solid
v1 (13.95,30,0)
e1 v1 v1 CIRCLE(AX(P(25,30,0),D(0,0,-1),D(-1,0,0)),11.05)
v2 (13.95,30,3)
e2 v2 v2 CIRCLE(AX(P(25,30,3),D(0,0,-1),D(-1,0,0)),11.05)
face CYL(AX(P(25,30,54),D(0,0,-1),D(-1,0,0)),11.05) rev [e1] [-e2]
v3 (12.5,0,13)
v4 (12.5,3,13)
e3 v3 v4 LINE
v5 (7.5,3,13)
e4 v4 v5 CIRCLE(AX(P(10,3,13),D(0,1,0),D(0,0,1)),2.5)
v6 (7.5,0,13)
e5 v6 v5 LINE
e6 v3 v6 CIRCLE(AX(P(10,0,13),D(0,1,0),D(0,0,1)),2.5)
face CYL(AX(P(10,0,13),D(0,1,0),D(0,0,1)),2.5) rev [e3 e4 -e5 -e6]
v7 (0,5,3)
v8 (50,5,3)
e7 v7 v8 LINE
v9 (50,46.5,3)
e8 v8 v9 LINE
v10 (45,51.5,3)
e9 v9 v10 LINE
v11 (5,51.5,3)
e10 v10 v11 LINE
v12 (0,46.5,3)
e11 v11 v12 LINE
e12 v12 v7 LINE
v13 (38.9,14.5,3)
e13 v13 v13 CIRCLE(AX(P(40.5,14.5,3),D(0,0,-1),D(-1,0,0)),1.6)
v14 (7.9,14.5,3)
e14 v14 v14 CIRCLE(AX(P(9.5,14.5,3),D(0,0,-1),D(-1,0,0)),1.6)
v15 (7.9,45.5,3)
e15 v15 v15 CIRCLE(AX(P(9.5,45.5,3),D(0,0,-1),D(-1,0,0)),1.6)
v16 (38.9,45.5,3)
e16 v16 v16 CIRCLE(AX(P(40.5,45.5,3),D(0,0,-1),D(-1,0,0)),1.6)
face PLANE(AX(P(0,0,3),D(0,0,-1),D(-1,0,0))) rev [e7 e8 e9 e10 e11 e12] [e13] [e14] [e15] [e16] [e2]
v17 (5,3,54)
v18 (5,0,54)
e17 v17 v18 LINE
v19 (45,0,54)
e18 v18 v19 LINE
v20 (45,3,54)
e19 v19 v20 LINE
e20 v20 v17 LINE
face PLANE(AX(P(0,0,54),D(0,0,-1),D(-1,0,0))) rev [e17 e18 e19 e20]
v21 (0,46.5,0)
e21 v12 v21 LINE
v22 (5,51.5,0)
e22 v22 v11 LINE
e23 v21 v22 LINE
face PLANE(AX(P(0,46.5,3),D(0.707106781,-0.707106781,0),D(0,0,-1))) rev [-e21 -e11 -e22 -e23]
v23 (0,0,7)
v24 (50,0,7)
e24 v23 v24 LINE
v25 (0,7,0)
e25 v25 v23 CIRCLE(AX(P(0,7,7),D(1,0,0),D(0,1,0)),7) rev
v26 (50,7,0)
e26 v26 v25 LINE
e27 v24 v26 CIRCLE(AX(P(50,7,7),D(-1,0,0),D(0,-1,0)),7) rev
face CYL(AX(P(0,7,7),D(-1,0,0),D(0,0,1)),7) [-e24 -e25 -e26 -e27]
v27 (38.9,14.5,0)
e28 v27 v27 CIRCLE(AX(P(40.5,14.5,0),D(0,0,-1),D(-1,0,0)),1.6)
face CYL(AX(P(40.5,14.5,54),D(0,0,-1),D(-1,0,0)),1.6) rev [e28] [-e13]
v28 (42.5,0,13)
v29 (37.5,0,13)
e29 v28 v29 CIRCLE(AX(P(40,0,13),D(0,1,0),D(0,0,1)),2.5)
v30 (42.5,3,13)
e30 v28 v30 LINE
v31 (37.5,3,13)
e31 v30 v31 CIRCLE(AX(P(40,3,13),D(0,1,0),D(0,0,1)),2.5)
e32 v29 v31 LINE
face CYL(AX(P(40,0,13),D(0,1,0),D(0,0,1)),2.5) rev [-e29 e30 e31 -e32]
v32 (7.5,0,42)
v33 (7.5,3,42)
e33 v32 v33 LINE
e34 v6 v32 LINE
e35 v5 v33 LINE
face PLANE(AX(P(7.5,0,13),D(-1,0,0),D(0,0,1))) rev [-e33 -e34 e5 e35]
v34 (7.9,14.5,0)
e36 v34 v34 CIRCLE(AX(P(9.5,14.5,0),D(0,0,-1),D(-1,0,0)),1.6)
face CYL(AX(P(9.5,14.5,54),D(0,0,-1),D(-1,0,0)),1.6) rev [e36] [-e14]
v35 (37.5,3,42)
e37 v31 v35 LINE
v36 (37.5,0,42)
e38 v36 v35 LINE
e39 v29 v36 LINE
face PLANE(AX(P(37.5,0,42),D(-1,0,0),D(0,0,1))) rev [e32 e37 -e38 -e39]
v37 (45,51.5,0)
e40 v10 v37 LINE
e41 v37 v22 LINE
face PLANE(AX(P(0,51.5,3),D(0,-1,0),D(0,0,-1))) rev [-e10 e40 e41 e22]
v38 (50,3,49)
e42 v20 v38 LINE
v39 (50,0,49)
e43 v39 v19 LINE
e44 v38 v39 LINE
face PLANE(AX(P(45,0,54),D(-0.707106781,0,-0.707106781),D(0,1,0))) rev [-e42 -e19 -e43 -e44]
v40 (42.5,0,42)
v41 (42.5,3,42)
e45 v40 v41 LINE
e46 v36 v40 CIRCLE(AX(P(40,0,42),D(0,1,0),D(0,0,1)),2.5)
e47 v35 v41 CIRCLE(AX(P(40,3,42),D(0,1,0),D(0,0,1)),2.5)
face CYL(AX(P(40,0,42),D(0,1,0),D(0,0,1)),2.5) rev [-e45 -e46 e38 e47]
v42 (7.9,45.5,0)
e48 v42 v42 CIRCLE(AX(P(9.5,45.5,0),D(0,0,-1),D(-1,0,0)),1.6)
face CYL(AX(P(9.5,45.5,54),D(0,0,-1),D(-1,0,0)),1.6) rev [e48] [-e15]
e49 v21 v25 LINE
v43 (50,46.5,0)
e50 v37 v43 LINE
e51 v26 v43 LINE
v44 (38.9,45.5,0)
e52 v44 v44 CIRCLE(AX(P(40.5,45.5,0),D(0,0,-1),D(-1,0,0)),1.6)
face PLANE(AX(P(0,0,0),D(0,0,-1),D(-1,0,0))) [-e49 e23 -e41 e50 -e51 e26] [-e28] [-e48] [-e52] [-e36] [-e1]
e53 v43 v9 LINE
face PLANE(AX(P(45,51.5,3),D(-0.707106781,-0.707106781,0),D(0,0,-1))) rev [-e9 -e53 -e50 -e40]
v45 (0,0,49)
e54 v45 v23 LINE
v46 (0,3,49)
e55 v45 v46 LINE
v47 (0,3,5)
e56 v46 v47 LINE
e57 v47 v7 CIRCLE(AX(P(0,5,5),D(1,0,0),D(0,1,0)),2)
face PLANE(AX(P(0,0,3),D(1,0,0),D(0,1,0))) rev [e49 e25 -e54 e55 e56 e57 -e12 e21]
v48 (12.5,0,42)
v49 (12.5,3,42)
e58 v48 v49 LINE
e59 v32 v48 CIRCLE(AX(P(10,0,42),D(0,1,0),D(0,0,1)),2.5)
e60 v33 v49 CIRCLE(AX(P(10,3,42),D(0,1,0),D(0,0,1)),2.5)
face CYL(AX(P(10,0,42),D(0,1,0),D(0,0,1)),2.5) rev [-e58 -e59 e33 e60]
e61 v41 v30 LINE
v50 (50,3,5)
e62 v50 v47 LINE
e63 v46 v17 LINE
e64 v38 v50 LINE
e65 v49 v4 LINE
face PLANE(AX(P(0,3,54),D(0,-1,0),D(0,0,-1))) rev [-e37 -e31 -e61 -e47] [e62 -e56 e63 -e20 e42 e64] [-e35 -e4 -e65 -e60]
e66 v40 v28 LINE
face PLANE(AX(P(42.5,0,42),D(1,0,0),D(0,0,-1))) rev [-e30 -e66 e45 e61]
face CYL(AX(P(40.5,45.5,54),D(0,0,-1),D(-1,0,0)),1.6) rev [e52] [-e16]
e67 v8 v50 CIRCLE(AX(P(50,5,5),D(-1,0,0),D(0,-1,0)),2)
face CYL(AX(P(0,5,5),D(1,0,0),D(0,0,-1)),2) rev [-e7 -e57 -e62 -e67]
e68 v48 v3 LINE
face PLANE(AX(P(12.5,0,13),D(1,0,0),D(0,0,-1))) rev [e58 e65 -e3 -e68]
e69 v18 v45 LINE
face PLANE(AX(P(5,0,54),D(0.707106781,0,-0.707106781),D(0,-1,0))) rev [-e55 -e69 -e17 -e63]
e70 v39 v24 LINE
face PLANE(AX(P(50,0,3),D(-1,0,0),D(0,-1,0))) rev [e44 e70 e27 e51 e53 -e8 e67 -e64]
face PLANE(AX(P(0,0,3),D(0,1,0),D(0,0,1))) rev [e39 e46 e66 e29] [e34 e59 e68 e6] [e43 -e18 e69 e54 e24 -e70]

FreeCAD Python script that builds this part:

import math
import FreeCAD as App
import Part
import Sketcher

V = App.Vector
Q = App.Units.Quantity


def edges_at(feature, points):
    """Names of the edges that pass closest to the given points."""
    edges = feature.Shape.Edges
    near = lambda p: min(range(len(edges)), key=lambda i: edges[i].distToShape(Part.Vertex(*p))[0])
    return sorted({f"Edge{near(p) + 1}" for p in points})


def add_polygon(sketch, points):
    """Adds a closed chain of lines whose ends are joined by coincident constraints."""
    first, n = sketch.GeometryCount, len(points)
    for a, b in zip(points, points[1:] + points[:1]):
        sketch.addGeometry(Part.LineSegment(App.Vector(*a, 0), App.Vector(*b, 0)), False)
    for i in range(n):
        sketch.addConstraint(Sketcher.Constraint("Coincident", first + i, 2, first + (i + 1) % n, 1))

doc = App.newDocument("Part")
body = doc.addObject("PartDesign::Body", "Body")

# Sketch on XY plane
sketch1 = body.newObject("Sketcher::SketchObject", "Sketch")
sketch1.AttachmentSupport = (doc.getObject("XY_Plane"), [""])
sketch1.MapMode = "FlatFace"
add_polygon(sketch1, [(0, 52), (0, 0), (50, 0), (50, 52)])  # lines 0-3
sketch1.addConstraint(Sketcher.Constraint("Vertical", 0))
sketch1.addConstraint(Sketcher.Constraint("Horizontal", 1))
sketch1.addConstraint(Sketcher.Constraint("Vertical", 2))
sketch1.addConstraint(Sketcher.Constraint("Horizontal", 3))
sketch1.addConstraint(Sketcher.Constraint("Coincident", 0, 2, -1, 1))
sketch1.addConstraint(Sketcher.Constraint("DistanceX", 1, 1, 1, 2, Q("50 mm")))
sketch1.addConstraint(Sketcher.Constraint("DistanceY", 0, 2, 0, 1, Q("51.5 mm")))
pad1 = body.newObject("PartDesign::Pad", "Pad")
pad1.Profile = sketch1
pad1.Length = 3

# Sketch on XY plane
sketch2 = body.newObject("Sketcher::SketchObject", "Sketch001")
sketch2.AttachmentSupport = (doc.getObject("XY_Plane"), [""])
sketch2.MapMode = "FlatFace"
sketch2.AttachmentOffset = App.Placement(V(0, 0, 3), App.Rotation())
add_polygon(sketch2, [(0, 3), (0, 0), (50, 0), (50, 3)])  # lines 0-3
sketch2.addConstraint(Sketcher.Constraint("Vertical", 0))
sketch2.addConstraint(Sketcher.Constraint("Horizontal", 1))
sketch2.addConstraint(Sketcher.Constraint("Vertical", 2))
sketch2.addConstraint(Sketcher.Constraint("Horizontal", 3))
sketch2.addConstraint(Sketcher.Constraint("Coincident", 0, 2, -1, 1))
sketch2.addConstraint(Sketcher.Constraint("DistanceX", 1, 1, 1, 2, Q("50 mm")))
sketch2.addConstraint(Sketcher.Constraint("DistanceY", 0, 2, 0, 1, Q("3 mm")))
pad2 = body.newObject("PartDesign::Pad", "Pad001")
pad2.Profile = sketch2
pad2.Length = 51

# Sketch on XY plane
sketch3 = body.newObject("Sketcher::SketchObject", "Sketch002")
sketch3.AttachmentSupport = (doc.getObject("XY_Plane"), [""])
sketch3.MapMode = "FlatFace"
sketch3.addGeometry(Part.Circle(V(25, 30, 0), V(0, 0, 1), 11.1), False)
sketch3.addGeometry(Part.Circle(V(40.5, 45.5, 0), V(0, 0, 1), 1.6), False)
sketch3.addGeometry(Part.Circle(V(9.5, 45.5, 0), V(0, 0, 1), 1.6), False)
sketch3.addGeometry(Part.Circle(V(9.5, 14.5, 0), V(0, 0, 1), 1.6), False)
sketch3.addGeometry(Part.Circle(V(40.5, 14.5, 0), V(0, 0, 1), 1.6), False)
sketch3.addConstraint(Sketcher.Constraint("Equal", 1, 2))
sketch3.addConstraint(Sketcher.Constraint("Equal", 2, 3))
sketch3.addConstraint(Sketcher.Constraint("Equal", 3, 4))
sketch3.addConstraint(Sketcher.Constraint("Horizontal", 1, 3, 2, 3))
sketch3.addConstraint(Sketcher.Constraint("Horizontal", 3, 3, 4, 3))
sketch3.addConstraint(Sketcher.Constraint("Vertical", 2, 3, 3, 3))
sketch3.addConstraint(Sketcher.Constraint("Vertical", 1, 3, 4, 3))
sketch3.addConstraint(Sketcher.Constraint("Diameter", 0, Q("22.1 mm")))
sketch3.addConstraint(Sketcher.Constraint("Diameter", 1, Q("3.2 mm")))
sketch3.addConstraint(Sketcher.Constraint("DistanceX", -1, 1, 0, 3, Q("25 mm")))
sketch3.addConstraint(Sketcher.Constraint("DistanceY", -1, 1, 0, 3, Q("30 mm")))
sketch3.addConstraint(Sketcher.Constraint("DistanceX", 2, 3, 1, 3, Q("31 mm")))
sketch3.addConstraint(Sketcher.Constraint("DistanceY", 3, 3, 2, 3, Q("31 mm")))
sketch3.addConstraint(Sketcher.Constraint("DistanceX", -1, 1, 1, 3, Q("40.5 mm")))
sketch3.addConstraint(Sketcher.Constraint("DistanceY", -1, 1, 1, 3, Q("45.5 mm")))
pocket1 = body.newObject("PartDesign::Pocket", "Pocket")
pocket1.Profile = sketch3
pocket1.Type = "ThroughAll"
pocket1.Reversed = True

# Sketch on XZ plane
sketch4 = body.newObject("Sketcher::SketchObject", "Sketch003")
sketch4.AttachmentSupport = (doc.getObject("XZ_Plane"), [""])
sketch4.MapMode = "FlatFace"
sketch4.AttachmentOffset = App.Placement(V(0, 0, -3), App.Rotation())
sketch4.addGeometry(Part.LineSegment(V(12.5, 42, 0), V(12.5, 13, 0)), False)
sketch4.addGeometry(Part.ArcOfCircle(Part.Circle(V(10, 13, 0), V(0, 0, 1), 2.5), math.radians(180), math.radians(360)), False)
sketch4.addGeometry(Part.LineSegment(V(7.5, 13, 0), V(7.5, 42, 0)), False)
sketch4.addGeometry(Part.ArcOfCircle(Part.Circle(V(10, 42, 0), V(0, 0, 1), 2.5), math.radians(0), math.radians(180)), False)
sketch4.addGeometry(Part.LineSegment(V(37.5, 13, 0), V(37.5, 42, 0)), False)
sketch4.addGeometry(Part.ArcOfCircle(Part.Circle(V(40, 42, 0), V(0, 0, 1), 2.5), math.radians(0), math.radians(180)), False)
sketch4.addGeometry(Part.LineSegment(V(42.5, 42, 0), V(42.5, 13, 0)), False)
sketch4.addGeometry(Part.ArcOfCircle(Part.Circle(V(40, 13, 0), V(0, 0, 1), 2.5), math.radians(180), math.radians(360)), False)
sketch4.addConstraint(Sketcher.Constraint("Tangent", 0, 2, 1, 2))
sketch4.addConstraint(Sketcher.Constraint("Tangent", 1, 1, 2, 1))
sketch4.addConstraint(Sketcher.Constraint("Tangent", 2, 2, 3, 2))
sketch4.addConstraint(Sketcher.Constraint("Tangent", 3, 1, 0, 1))
sketch4.addConstraint(Sketcher.Constraint("Tangent", 4, 2, 5, 2))
sketch4.addConstraint(Sketcher.Constraint("Tangent", 5, 1, 6, 1))
sketch4.addConstraint(Sketcher.Constraint("Tangent", 6, 2, 7, 2))
sketch4.addConstraint(Sketcher.Constraint("Tangent", 7, 1, 4, 1))
sketch4.addConstraint(Sketcher.Constraint("Vertical", 0))
sketch4.addConstraint(Sketcher.Constraint("Vertical", 2))
sketch4.addConstraint(Sketcher.Constraint("Vertical", 4))
sketch4.addConstraint(Sketcher.Constraint("Vertical", 6))
sketch4.addConstraint(Sketcher.Constraint("Equal", 3, 5))
sketch4.addConstraint(Sketcher.Constraint("Horizontal", 3, 3, 5, 3))
sketch4.addConstraint(Sketcher.Constraint("Horizontal", 1, 3, 7, 3))
sketch4.addConstraint(Sketcher.Constraint("Radius", 1, Q("2.5 mm")))
sketch4.addConstraint(Sketcher.Constraint("DistanceY", 0, 2, 0, 1, Q("29 mm")))
sketch4.addConstraint(Sketcher.Constraint("DistanceX", -1, 1, 1, 3, Q("10 mm")))
sketch4.addConstraint(Sketcher.Constraint("DistanceY", -1, 1, 1, 3, Q("13 mm")))
sketch4.addConstraint(Sketcher.Constraint("DistanceX", -1, 1, 5, 3, Q("40 mm")))
pocket2 = body.newObject("PartDesign::Pocket", "Pocket001")
pocket2.Profile = sketch4
pocket2.Type = "ThroughAll"
pocket2.Reversed = True
doc.recompute()

chamfer = body.newObject("PartDesign::Chamfer", "Chamfer")
chamfer.Base = (pocket2, edges_at(pocket2, [
    (0, 1.5, 54),
    (50, 1.5, 54),
    (0, 51.5, 1.5),
    (50, 51.5, 1.5),
]))
chamfer.Size = 5
doc.recompute()

fillet = body.newObject("PartDesign::Fillet", "Fillet")
fillet.Base = (chamfer, edges_at(chamfer, [(25, 0, 0)]))
fillet.Radius = 7
doc.recompute()

fillet2 = body.newObject("PartDesign::Fillet", "Fillet001")
fillet2.Base = (fillet, edges_at(fillet, [(25, 3, 3)]))
fillet2.Radius = 2

doc.recompute()
